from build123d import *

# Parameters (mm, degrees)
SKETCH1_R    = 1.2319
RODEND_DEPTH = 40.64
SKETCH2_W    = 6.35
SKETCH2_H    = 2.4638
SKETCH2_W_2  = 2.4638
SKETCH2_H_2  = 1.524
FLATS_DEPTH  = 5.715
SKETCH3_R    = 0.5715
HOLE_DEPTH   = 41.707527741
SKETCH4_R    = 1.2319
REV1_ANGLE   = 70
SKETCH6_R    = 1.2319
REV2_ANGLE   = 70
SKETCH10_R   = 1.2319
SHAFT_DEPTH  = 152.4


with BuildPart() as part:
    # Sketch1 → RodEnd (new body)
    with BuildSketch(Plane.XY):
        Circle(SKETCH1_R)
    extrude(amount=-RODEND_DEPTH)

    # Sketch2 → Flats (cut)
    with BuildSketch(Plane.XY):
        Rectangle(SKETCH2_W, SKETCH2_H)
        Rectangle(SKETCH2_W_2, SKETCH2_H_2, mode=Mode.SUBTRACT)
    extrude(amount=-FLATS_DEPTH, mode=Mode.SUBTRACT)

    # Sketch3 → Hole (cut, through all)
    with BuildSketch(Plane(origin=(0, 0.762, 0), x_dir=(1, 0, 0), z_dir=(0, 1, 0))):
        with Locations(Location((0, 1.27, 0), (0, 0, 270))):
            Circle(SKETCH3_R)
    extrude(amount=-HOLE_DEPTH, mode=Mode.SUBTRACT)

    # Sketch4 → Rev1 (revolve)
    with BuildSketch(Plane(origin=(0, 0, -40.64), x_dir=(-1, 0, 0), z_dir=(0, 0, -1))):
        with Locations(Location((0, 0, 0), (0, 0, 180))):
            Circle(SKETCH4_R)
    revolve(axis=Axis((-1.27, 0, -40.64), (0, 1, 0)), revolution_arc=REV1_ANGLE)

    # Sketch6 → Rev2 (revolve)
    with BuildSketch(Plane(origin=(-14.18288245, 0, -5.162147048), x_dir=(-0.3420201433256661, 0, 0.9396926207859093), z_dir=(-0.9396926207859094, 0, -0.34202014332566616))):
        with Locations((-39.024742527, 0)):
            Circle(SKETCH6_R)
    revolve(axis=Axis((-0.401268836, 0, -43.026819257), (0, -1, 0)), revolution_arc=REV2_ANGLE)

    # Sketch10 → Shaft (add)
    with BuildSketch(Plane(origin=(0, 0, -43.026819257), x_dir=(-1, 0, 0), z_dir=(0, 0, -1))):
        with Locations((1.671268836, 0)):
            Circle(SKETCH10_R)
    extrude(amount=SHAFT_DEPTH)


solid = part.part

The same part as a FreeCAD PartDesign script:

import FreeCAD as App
import Part
import Sketcher

V = App.Vector
Q = App.Units.Quantity

doc = App.newDocument("Part")
body = doc.addObject("PartDesign::Body", "Body")

sketch1 = doc.addObject("Sketcher::SketchObject", "Sketch")
body.addObject(sketch1)
sketch1.AttachmentSupport = (doc.XY_Plane, [""])
sketch1.MapMode = "FlatFace"
sketch1.addGeometry(Part.Circle(V(0, 0, 0), V(0, 0, 1), 1.2), False)
sketch1.addConstraint(Sketcher.Constraint("Coincident", 0, 3, -1, 1))
sketch1.addConstraint(Sketcher.Constraint("Diameter", 0, Q("0.097 in")))
pad1 = doc.addObject("PartDesign::Pad", "Pad")
body.addObject(pad1)
pad1.Profile = sketch1
pad1.Length = Q("1.6 in")
pad1.Reversed = True

sketch2 = doc.addObject("Sketcher::SketchObject", "Sketch001")
body.addObject(sketch2)
sketch2.AttachmentSupport = (doc.XY_Plane, [""])
sketch2.MapMode = "FlatFace"
sketch2.addGeometry(Part.LineSegment(V(-3.2, 1.2, 0), V(-3.2, -1.2, 0)), False)
sketch2.addGeometry(Part.LineSegment(V(-3.2, -1.2, 0), V(3.2, -1.2, 0)), False)
sketch2.addGeometry(Part.LineSegment(V(3.2, -1.2, 0), V(3.2, 1.2, 0)), False)
sketch2.addGeometry(Part.LineSegment(V(3.2, 1.2, 0), V(-3.2, 1.2, 0)), False)
sketch2.addGeometry(Part.LineSegment(V(1.2, -0.8, 0), V(-1.2, -0.8, 0)), False)
sketch2.addGeometry(Part.LineSegment(V(-1.2, -0.8, 0), V(-1.2, 0.8, 0)), False)
sketch2.addGeometry(Part.LineSegment(V(-1.2, 0.8, 0), V(1.2, 0.8, 0)), False)
sketch2.addGeometry(Part.LineSegment(V(1.2, 0.8, 0), V(1.2, -0.8, 0)), False)
sketch2.addConstraint(Sketcher.Constraint("Coincident", 0, 2, 1, 1))
sketch2.addConstraint(Sketcher.Constraint("Coincident", 1, 2, 2, 1))
sketch2.addConstraint(Sketcher.Constraint("Coincident", 2, 2, 3, 1))
sketch2.addConstraint(Sketcher.Constraint("Coincident", 3, 2, 0, 1))
sketch2.addConstraint(Sketcher.Constraint("Coincident", 4, 2, 5, 1))
sketch2.addConstraint(Sketcher.Constraint("Coincident", 5, 2, 6, 1))
sketch2.addConstraint(Sketcher.Constraint("Coincident", 6, 2, 7, 1))
sketch2.addConstraint(Sketcher.Constraint("Coincident", 7, 2, 4, 1))
sketch2.addConstraint(Sketcher.Constraint("Vertical", 0))
sketch2.addConstraint(Sketcher.Constraint("Horizontal", 1))
sketch2.addConstraint(Sketcher.Constraint("Vertical", 2))
sketch2.addConstraint(Sketcher.Constraint("Horizontal", 3))
sketch2.addConstraint(Sketcher.Constraint("Horizontal", 4))
sketch2.addConstraint(Sketcher.Constraint("Vertical", 5))
sketch2.addConstraint(Sketcher.Constraint("Horizontal", 6))
sketch2.addConstraint(Sketcher.Constraint("Vertical", 7))
sketch2.addConstraint(Sketcher.Constraint("Symmetric", 0, 2, 2, 2, -1, 1))
sketch2.addConstraint(Sketcher.Constraint("Symmetric", 4, 2, 6, 2, -1, 1))
sketch2.addConstraint(Sketcher.Constraint("Equal", 6, 0))
sketch2.addConstraint(Sketcher.Constraint("DistanceX", 1, 1, 1, 2, Q("0.25 in")))
sketch2.addConstraint(Sketcher.Constraint("DistanceY", 5, 1, 5, 2, Q("0.06 in")))
sketch2.addConstraint(Sketcher.Constraint("DistanceX", 4, 2, 4, 1, Q("0.097 in")))
pocket1 = doc.addObject("PartDesign::Pocket", "Pocket")
body.addObject(pocket1)
pocket1.Profile = sketch2
pocket1.Length = Q("0.225 in")

sketch3 = doc.addObject("Sketcher::SketchObject", "Sketch002")
body.addObject(sketch3)
sketch3.AttachmentSupport = (doc.XZ_Plane, [""])
sketch3.MapMode = "FlatFace"
sketch3.AttachmentOffset = App.Placement(V(0, 0, -0.03 * 25.4), App.Rotation())
sketch3.addGeometry(Part.Circle(V(0, -1.3, 0), V(0, 0, 1), 0.6), False)
sketch3.addConstraint(Sketcher.Constraint("PointOnObject", 0, 3, -2))
sketch3.addConstraint(Sketcher.Constraint("Diameter", 0, Q("0.045 in")))
sketch3.addConstraint(Sketcher.Constraint("DistanceY", 0, 3, -1, 1, Q("0.05 in")))
pocket2 = doc.addObject("PartDesign::Pocket", "Pocket001")
body.addObject(pocket2)
pocket2.Profile = sketch3
pocket2.Type = "ThroughAll"
pocket2.Reversed = True

sketch4 = doc.addObject("Sketcher::SketchObject", "Sketch003")
body.addObject(sketch4)
sketch4.AttachmentSupport = (doc.XY_Plane, [""])
sketch4.MapMode = "FlatFace"
sketch4.AttachmentOffset = App.Placement(V(0, 0, -1.6 * 25.4), App.Rotation())
sketch4.addGeometry(Part.Circle(V(0, 0, 0), V(0, 0, 1), 1.2), False)
sketch4.addGeometry(Part.LineSegment(V(-1.3, 0, 0), V(-1.3, 10, 0)), True)
sketch4.addConstraint(Sketcher.Constraint("Vertical", 1))
sketch4.addConstraint(Sketcher.Constraint("Coincident", 0, 3, -1, 1))
sketch4.addConstraint(Sketcher.Constraint("PointOnObject", 1, 1, -1))
sketch4.addConstraint(Sketcher.Constraint("Diameter", 0, Q("0.097 in")))
sketch4.addConstraint(Sketcher.Constraint("DistanceX", 1, 1, -1, 1, Q("0.05 in")))
sketch4.addConstraint(Sketcher.Constraint("DistanceY", 1, 1, 1, 2, Q("10 mm")))
revolution = doc.addObject("PartDesign::Revolution", "Revolution")
body.addObject(revolution)
revolution.Profile = sketch4
revolution.ReferenceAxis = (sketch4, ["Axis0"])
revolution.Angle = 70

sketch5 = doc.addObject("Sketcher::SketchObject", "Sketch004")
body.addObject(sketch5)
sketch5.Placement = App.Placement(V(-14.182882, 0, -5.162147), App.Rotation(V(-0.342020143, 0, 0.939692621), V(0, 1, 0), V(-0.939692621, 0, -0.342020143), "ZXY"))
sketch5.addGeometry(Part.Circle(V(-39, 0, 0), V(0, 0, 1), 1.2), False)
sketch5.addGeometry(Part.LineSegment(V(-40.3, 0, 0), V(-40.3, -10, 0)), True)
sketch5.addConstraint(Sketcher.Constraint("Vertical", 1))
sketch5.addConstraint(Sketcher.Constraint("PointOnObject", 0, 3, -1))
sketch5.addConstraint(Sketcher.Constraint("PointOnObject", 1, 1, -1))
sketch5.addConstraint(Sketcher.Constraint("Diameter", 0, Q("0.097 in")))
sketch5.addConstraint(Sketcher.Constraint("DistanceX", 1, 1, 0, 3, Q("0.05 in")))
sketch5.addConstraint(Sketcher.Constraint("DistanceY", 1, 2, 1, 1, Q("10 mm")))
sketch5.addConstraint(Sketcher.Constraint("DistanceX", 0, 3, -1, 1, Q("39.024743 mm")))
revolution2 = doc.addObject("PartDesign::Revolution", "Revolution001")
body.addObject(revolution2)
revolution2.Profile = sketch5
revolution2.ReferenceAxis = (sketch5, ["Axis0"])
revolution2.Angle = 70

sketch6 = doc.addObject("Sketcher::SketchObject", "Sketch005")
body.addObject(sketch6)
sketch6.AttachmentSupport = (doc.XY_Plane, [""])
sketch6.MapMode = "FlatFace"
sketch6.AttachmentOffset = App.Placement(V(0, 0, -43.026819), App.Rotation())
sketch6.addGeometry(Part.Circle(V(-1.7, 0, 0), V(0, 0, 1), 1.2), False)
sketch6.addConstraint(Sketcher.Constraint("PointOnObject", 0, 3, -1))
sketch6.addConstraint(Sketcher.Constraint("Diameter", 0, Q("0.097 in")))
sketch6.addConstraint(Sketcher.Constraint("DistanceX", 0, 3, -1, 1, Q("1.671269 mm")))
pad2 = doc.addObject("PartDesign::Pad", "Pad001")
body.addObject(pad2)
pad2.Profile = sketch6
pad2.Length = Q("6 in")
pad2.Reversed = True

doc.recompute()
